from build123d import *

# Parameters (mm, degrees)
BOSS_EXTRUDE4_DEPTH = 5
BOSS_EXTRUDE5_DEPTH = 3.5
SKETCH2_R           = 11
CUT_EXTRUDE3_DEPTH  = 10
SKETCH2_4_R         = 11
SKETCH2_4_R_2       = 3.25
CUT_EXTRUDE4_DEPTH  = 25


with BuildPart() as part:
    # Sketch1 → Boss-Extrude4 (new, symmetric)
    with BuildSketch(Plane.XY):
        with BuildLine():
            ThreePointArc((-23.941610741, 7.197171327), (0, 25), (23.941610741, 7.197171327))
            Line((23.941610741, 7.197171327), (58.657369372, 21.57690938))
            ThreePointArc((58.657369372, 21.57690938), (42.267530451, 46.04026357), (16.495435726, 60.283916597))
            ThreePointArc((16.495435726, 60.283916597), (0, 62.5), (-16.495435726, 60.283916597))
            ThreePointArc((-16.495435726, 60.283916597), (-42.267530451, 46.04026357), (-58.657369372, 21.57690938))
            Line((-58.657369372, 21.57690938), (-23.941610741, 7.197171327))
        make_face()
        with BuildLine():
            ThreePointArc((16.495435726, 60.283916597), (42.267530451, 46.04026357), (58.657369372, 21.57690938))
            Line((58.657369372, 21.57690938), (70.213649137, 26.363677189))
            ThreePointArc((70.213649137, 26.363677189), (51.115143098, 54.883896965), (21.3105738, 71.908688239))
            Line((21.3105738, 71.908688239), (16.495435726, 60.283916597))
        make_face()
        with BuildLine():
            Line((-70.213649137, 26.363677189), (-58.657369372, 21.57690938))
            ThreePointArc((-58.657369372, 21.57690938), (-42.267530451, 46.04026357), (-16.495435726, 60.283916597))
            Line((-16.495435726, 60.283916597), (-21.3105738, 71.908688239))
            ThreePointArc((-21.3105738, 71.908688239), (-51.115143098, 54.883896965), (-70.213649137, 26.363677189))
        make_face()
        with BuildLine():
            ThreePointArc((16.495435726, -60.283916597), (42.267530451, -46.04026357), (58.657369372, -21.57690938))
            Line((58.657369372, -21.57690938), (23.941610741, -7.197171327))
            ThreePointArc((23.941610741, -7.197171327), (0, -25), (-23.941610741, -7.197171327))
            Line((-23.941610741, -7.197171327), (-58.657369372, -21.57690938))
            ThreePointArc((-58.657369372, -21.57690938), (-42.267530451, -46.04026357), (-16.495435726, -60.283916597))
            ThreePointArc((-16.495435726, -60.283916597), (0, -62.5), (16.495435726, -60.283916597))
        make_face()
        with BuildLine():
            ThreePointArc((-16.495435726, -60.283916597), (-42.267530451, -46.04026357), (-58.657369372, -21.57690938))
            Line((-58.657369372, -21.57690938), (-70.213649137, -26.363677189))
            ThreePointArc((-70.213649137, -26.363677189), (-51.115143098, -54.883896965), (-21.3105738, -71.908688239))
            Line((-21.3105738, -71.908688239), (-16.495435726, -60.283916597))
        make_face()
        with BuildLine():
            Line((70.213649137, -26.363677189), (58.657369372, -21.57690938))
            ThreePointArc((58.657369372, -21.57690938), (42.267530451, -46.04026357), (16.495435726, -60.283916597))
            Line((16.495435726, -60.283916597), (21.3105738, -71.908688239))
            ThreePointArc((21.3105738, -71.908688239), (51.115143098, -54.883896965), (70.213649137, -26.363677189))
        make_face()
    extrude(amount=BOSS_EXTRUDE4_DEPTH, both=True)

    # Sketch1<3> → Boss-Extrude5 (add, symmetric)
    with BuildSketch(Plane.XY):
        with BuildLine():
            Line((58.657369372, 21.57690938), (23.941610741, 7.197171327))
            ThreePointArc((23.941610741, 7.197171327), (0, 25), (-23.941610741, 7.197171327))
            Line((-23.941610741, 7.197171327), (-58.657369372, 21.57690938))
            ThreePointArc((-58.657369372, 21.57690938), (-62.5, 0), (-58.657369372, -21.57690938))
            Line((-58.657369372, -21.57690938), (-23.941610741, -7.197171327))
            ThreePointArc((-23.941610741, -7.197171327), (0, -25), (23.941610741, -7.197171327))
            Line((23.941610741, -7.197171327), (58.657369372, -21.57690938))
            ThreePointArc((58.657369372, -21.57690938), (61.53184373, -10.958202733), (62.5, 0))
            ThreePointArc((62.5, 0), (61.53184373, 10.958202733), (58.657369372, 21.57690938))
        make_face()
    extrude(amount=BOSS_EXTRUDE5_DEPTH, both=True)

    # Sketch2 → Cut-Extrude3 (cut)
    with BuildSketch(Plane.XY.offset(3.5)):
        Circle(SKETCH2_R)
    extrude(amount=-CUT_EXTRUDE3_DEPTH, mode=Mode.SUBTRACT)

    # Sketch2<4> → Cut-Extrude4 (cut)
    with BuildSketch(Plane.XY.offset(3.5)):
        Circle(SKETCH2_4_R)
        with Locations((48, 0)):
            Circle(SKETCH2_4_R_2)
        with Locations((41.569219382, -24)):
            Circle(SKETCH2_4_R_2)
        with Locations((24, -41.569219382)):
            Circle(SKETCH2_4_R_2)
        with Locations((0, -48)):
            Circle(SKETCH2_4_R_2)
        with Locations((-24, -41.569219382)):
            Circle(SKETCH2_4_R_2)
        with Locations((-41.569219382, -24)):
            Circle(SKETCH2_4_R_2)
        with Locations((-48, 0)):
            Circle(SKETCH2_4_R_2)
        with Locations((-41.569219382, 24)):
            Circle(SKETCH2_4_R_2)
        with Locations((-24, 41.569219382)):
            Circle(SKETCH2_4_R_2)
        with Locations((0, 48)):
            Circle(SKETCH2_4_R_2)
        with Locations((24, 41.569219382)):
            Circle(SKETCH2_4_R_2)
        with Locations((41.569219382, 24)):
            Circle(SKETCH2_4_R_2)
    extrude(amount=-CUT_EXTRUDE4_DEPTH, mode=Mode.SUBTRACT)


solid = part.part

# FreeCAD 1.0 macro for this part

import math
import FreeCAD as App
import Part
import Sketcher

V = App.Vector
Q = App.Units.Quantity

doc = App.newDocument("Part")
body = doc.addObject("PartDesign::Body", "Body")
body.AllowCompound = True

# Sketch on XY plane
sketch1 = body.newObject("Sketcher::SketchObject", "Sketch")
sketch1.AttachmentSupport = (doc.getObject("XY_Plane"), [""])
sketch1.MapMode = "FlatFace"
sketch1.addGeometry([
    Part.ArcOfCircle(Part.Circle(V(0, 0, 0), V(0, 0, 1), 25), math.radians(17), math.radians(163)),  # 0
    Part.LineSegment(V(24, 7, 0), V(59, 22, 0)),  # 1
    Part.LineSegment(V(59, 22, 0), V(70, 26, 0)),  # 2
    Part.ArcOfCircle(Part.Circle(V(0, 0, 0), V(0, 0, 1), 75), math.radians(21), math.radians(73)),  # 3
    Part.LineSegment(V(21, 72, 0), V(16, 60, 0)),  # 4
    Part.ArcOfCircle(Part.Circle(V(0, 0, 0), V(0, 0, 1), 63), math.radians(75), math.radians(105)),  # 5
    Part.LineSegment(V(-16, 60, 0), V(-21, 72, 0)),  # 6
    Part.ArcOfCircle(Part.Circle(V(0, 0, 0), V(0, 0, 1), 75), math.radians(107), math.radians(159)),  # 7
    Part.LineSegment(V(-70, 26, 0), V(-59, 22, 0)),  # 8
    Part.LineSegment(V(-59, 22, 0), V(-24, 7, 0)),  # 9
    Part.LineSegment(V(59, -22, 0), V(24, -7, 0)),  # 10
    Part.ArcOfCircle(Part.Circle(V(0, 0, 0), V(0, 0, 1), 25), math.radians(-163), math.radians(-17)),  # 11
    Part.LineSegment(V(-24, -7, 0), V(-59, -22, 0)),  # 12
    Part.LineSegment(V(-59, -22, 0), V(-70, -26, 0)),  # 13
    Part.ArcOfCircle(Part.Circle(V(0, 0, 0), V(0, 0, 1), 75), math.radians(-159), math.radians(-107)),  # 14
    Part.LineSegment(V(-21, -72, 0), V(-16, -60, 0)),  # 15
    Part.ArcOfCircle(Part.Circle(V(0, 0, 0), V(0, 0, 1), 63), math.radians(-105), math.radians(-75)),  # 16
    Part.LineSegment(V(16, -60, 0), V(21, -72, 0)),  # 17
    Part.ArcOfCircle(Part.Circle(V(0, 0, 0), V(0, 0, 1), 75), math.radians(-73), math.radians(-21)),  # 18
    Part.LineSegment(V(70, -26, 0), V(59, -22, 0)),  # 19
], False)
sketch1.addConstraint([
    Sketcher.Constraint("Coincident", 0, 1, 1, 1),
    Sketcher.Constraint("Coincident", 1, 2, 2, 1),
    Sketcher.Constraint("Coincident", 2, 2, 3, 1),
    Sketcher.Constraint("Coincident", 3, 2, 4, 1),
    Sketcher.Constraint("Coincident", 4, 2, 5, 1),
    Sketcher.Constraint("Coincident", 5, 2, 6, 1),
    Sketcher.Constraint("Coincident", 6, 2, 7, 1),
    Sketcher.Constraint("Coincident", 7, 2, 8, 1),
    Sketcher.Constraint("Coincident", 8, 2, 9, 1),
    Sketcher.Constraint("Coincident", 9, 2, 0, 2),
    Sketcher.Constraint("Coincident", 10, 2, 11, 2),
    Sketcher.Constraint("Coincident", 11, 1, 12, 1),
    Sketcher.Constraint("Coincident", 12, 2, 13, 1),
    Sketcher.Constraint("Coincident", 13, 2, 14, 1),
    Sketcher.Constraint("Coincident", 14, 2, 15, 1),
    Sketcher.Constraint("Coincident", 15, 2, 16, 1),
    Sketcher.Constraint("Coincident", 16, 2, 17, 1),
    Sketcher.Constraint("Coincident", 17, 2, 18, 1),
    Sketcher.Constraint("Coincident", 18, 2, 19, 1),
    Sketcher.Constraint("Coincident", 19, 2, 10, 1),
    Sketcher.Constraint("Coincident", 0, 3, -1, 1),
    Sketcher.Constraint("Coincident", 3, 3, -1, 1),
    Sketcher.Constraint("Coincident", 5, 3, -1, 1),
    Sketcher.Constraint("Coincident", 7, 3, -1, 1),
    Sketcher.Constraint("Coincident", 11, 3, -1, 1),
    Sketcher.Constraint("Coincident", 14, 3, -1, 1),
    Sketcher.Constraint("Coincident", 16, 3, -1, 1),
    Sketcher.Constraint("Coincident", 18, 3, -1, 1),
    Sketcher.Constraint("Equal", 3, 7),
    Sketcher.Constraint("Equal", 0, 11),
    Sketcher.Constraint("Equal", 7, 14),
    Sketcher.Constraint("Equal", 5, 16),
    Sketcher.Constraint("Equal", 14, 18),
    Sketcher.Constraint("Symmetric", 1, 2, 12, 2, -1, 1),
    Sketcher.Constraint("Symmetric", 8, 2, 19, 2, -1, 1),
    Sketcher.Constraint("Symmetric", 1, 2, 8, 2, -2),
    Sketcher.Constraint("Parallel", 1, 2),
    Sketcher.Constraint("Perpendicular", 2, 6),
    Sketcher.Constraint("Perpendicular", 4, 8),
    Sketcher.Constraint("Parallel", 8, 9),
    Sketcher.Constraint("Parallel", 9, 10),
    Sketcher.Constraint("Perpendicular", 6, 12),
    Sketcher.Constraint("Parallel", 12, 13),
    Sketcher.Constraint("Perpendicular", 10, 15),
    Sketcher.Constraint("Perpendicular", 13, 17),
    Sketcher.Constraint("Perpendicular", 15, 19),
    Sketcher.Constraint("Horizontal", 4, 2, 5, 2),
    Sketcher.Constraint("Horizontal", 3, 2, 6, 2),
    Sketcher.Constraint("Horizontal", 15, 2, 16, 2),
    Sketcher.Constraint("Vertical", 6, 2, 14, 2),
    Sketcher.Constraint("Radius", 0, 25.0),
    Sketcher.Constraint("Radius", 3, 75.0),
    Sketcher.Constraint("Radius", 5, 62.5),
    Sketcher.Constraint("Angle", 1, Q("22.5 deg")),
    Sketcher.Constraint("DistanceX", -1, 1, 0, 1, 23.941611),
    Sketcher.Constraint("DistanceX", -1, 1, 1, 2, 58.657369),
    Sketcher.Constraint("DistanceY", -1, 1, 3, 2, 71.908688),
])
pad1 = body.newObject("PartDesign::Pad", "Pad")
pad1.Profile = sketch1
pad1.Length = 10
pad1.Midplane = True

# Sketch on XY plane
sketch2 = body.newObject("Sketcher::SketchObject", "Sketch001")
sketch2.AttachmentSupport = (doc.getObject("XY_Plane"), [""])
sketch2.MapMode = "FlatFace"
sketch2.addGeometry([
    Part.LineSegment(V(59, 22, 0), V(24, 7, 0)),  # 0
    Part.ArcOfCircle(Part.Circle(V(0, 0, 0), V(0, 0, 1), 25), math.radians(17), math.radians(163)),  # 1
    Part.LineSegment(V(-24, 7, 0), V(-59, 22, 0)),  # 2
    Part.ArcOfCircle(Part.Circle(V(0, 0, 0), V(0, 0, 1), 63), math.radians(160), math.radians(200)),  # 3
    Part.LineSegment(V(-59, -22, 0), V(-24, -7, 0)),  # 4
    Part.ArcOfCircle(Part.Circle(V(0, 0, 0), V(0, 0, 1), 25), math.radians(-163), math.radians(-17)),  # 5
    Part.LineSegment(V(24, -7, 0), V(59, -22, 0)),  # 6
    Part.ArcOfCircle(Part.Circle(V(0, 0, 0), V(0, 0, 1), 63), math.radians(-20), math.radians(0)),  # 7
    Part.ArcOfCircle(Part.Circle(V(0, 0, 0), V(0, 0, 1), 63), math.radians(0), math.radians(20)),  # 8
], False)
sketch2.addConstraint([
    Sketcher.Constraint("Coincident", 0, 2, 1, 1),
    Sketcher.Constraint("Coincident", 1, 2, 2, 1),
    Sketcher.Constraint("Coincident", 2, 2, 3, 1),
    Sketcher.Constraint("Coincident", 3, 2, 4, 1),
    Sketcher.Constraint("Coincident", 4, 2, 5, 1),
    Sketcher.Constraint("Coincident", 5, 2, 6, 1),
    Sketcher.Constraint("Coincident", 6, 2, 7, 1),
    Sketcher.Constraint("Tangent", 7, 2, 8, 1),
    Sketcher.Constraint("Coincident", 8, 2, 0, 1),
    Sketcher.Constraint("Coincident", 1, 3, -1, 1),
    Sketcher.Constraint("Coincident", 3, 3, -1, 1),
    Sketcher.Constraint("Coincident", 5, 3, -1, 1),
    Sketcher.Constraint("Coincident", 7, 3, -1, 1),
    Sketcher.Constraint("Equal", 1, 5),
    Sketcher.Constraint("Equal", 3, 7),
    Sketcher.Constraint("Equal", 7, 8),
    Sketcher.Constraint("PointOnObject", 7, 2, -1),
    Sketcher.Constraint("Parallel", 0, 4),
    Sketcher.Constraint("Parallel", 2, 6),
    Sketcher.Constraint("Horizontal", 0, 2, 1, 2),
    Sketcher.Constraint("Horizontal", 4, 2, 5, 2),
    Sketcher.Constraint("Horizontal", 3, 2, 6, 2),
    Sketcher.Constraint("Vertical", 2, 2, 3, 2),
    Sketcher.Constraint("Radius", 1, 25.0),
    Sketcher.Constraint("Radius", 3, 62.5),
    Sketcher.Constraint("Angle", 0, Q("-157.5 deg")),
    Sketcher.Constraint("DistanceX", -1, 1, 0, 2, 23.941611),
])
pad2 = body.newObject("PartDesign::Pad", "Pad001")
pad2.Profile = sketch2
pad2.Length = 7
pad2.Midplane = True

# Sketch on XY plane
sketch3 = body.newObject("Sketcher::SketchObject", "Sketch002")
sketch3.AttachmentSupport = (doc.getObject("XY_Plane"), [""])
sketch3.MapMode = "FlatFace"
sketch3.AttachmentOffset = App.Placement(V(0, 0, 3.5), App.Rotation())
sketch3.addGeometry(Part.Circle(V(0, 0, 0), V(0, 0, 1), 11), False)
sketch3.addConstraint([
    Sketcher.Constraint("Coincident", 0, 3, -1, 1),
    Sketcher.Constraint("Diameter", 0, 22.0),
])
pocket1 = body.newObject("PartDesign::Pocket", "Pocket")
pocket1.Profile = sketch3
pocket1.Length = 10

# Sketch on XY plane
sketch4 = body.newObject("Sketcher::SketchObject", "Sketch003")
sketch4.AttachmentSupport = (doc.getObject("XY_Plane"), [""])
sketch4.MapMode = "FlatFace"
sketch4.AttachmentOffset = App.Placement(V(0, 0, 3.5), App.Rotation())
sketch4.addGeometry([
    Part.Circle(V(0, 0, 0), V(0, 0, 1), 11),  # 0
    Part.Circle(V(48, 0, 0), V(0, 0, 1), 3.2),  # 1
    Part.Circle(V(41.6, -24, 0), V(0, 0, 1), 3.2),  # 2
    Part.Circle(V(24, -41.6, 0), V(0, 0, 1), 3.2),  # 3
    Part.Circle(V(0, -48, 0), V(0, 0, 1), 3.2),  # 4
    Part.Circle(V(-24, -41.6, 0), V(0, 0, 1), 3.2),  # 5
    Part.Circle(V(-41.6, -24, 0), V(0, 0, 1), 3.2),  # 6
    Part.Circle(V(-48, 0, 0), V(0, 0, 1), 3.2),  # 7
    Part.Circle(V(-41.6, 24, 0), V(0, 0, 1), 3.2),  # 8
    Part.Circle(V(-24, 41.6, 0), V(0, 0, 1), 3.2),  # 9
    Part.Circle(V(0, 48, 0), V(0, 0, 1), 3.2),  # 10
    Part.Circle(V(24, 41.6, 0), V(0, 0, 1), 3.2),  # 11
    Part.Circle(V(41.6, 24, 0), V(0, 0, 1), 3.2),  # 12
], False)
sketch4.addConstraint([
    Sketcher.Constraint("Coincident", 0, 3, -1, 1),
    Sketcher.Constraint("Equal", 1, 2),
    Sketcher.Constraint("Equal", 2, 3),
    Sketcher.Constraint("Equal", 3, 4),
    Sketcher.Constraint("Equal", 4, 5),
    Sketcher.Constraint("Equal", 5, 6),
    Sketcher.Constraint("Equal", 6, 7),
    Sketcher.Constraint("Equal", 7, 8),
    Sketcher.Constraint("Equal", 8, 9),
    Sketcher.Constraint("Equal", 9, 10),
    Sketcher.Constraint("Equal", 10, 11),
    Sketcher.Constraint("Equal", 11, 12),
    Sketcher.Constraint("Symmetric", 1, 3, 7, 3, -1, 1),
    Sketcher.Constraint("Symmetric", 2, 3, 8, 3, -1, 1),
    Sketcher.Constraint("Symmetric", 3, 3, 9, 3, -1, 1),
    Sketcher.Constraint("Symmetric", 4, 3, 10, 3, -1, 1),
    Sketcher.Constraint("Symmetric", 5, 3, 11, 3, -1, 1),
    Sketcher.Constraint("Symmetric", 6, 3, 12, 3, -1, 1),
    Sketcher.Constraint("Symmetric", 3, 3, 5, 3, -2),
    Sketcher.Constraint("Symmetric", 2, 3, 6, 3, -2),
    Sketcher.Constraint("PointOnObject", 1, 3, -1),
    Sketcher.Constraint("PointOnObject", 4, 3, -2),
    Sketcher.Constraint("Diameter", 0, 22.0),
    Sketcher.Constraint("Diameter", 1, 6.5),
    Sketcher.Constraint("DistanceX", -1, 1, 1, 3, 48.0),
    Sketcher.Constraint("DistanceY", 2, 3, -1, 1, 24.0),
    Sketcher.Constraint("DistanceX", -1, 1, 3, 3, 24.0),
    Sketcher.Constraint("DistanceY", 4, 3, -1, 1, 48.0),
    Sketcher.Constraint("DistanceX", -1, 1, 2, 3, 41.569219),
    Sketcher.Constraint("DistanceY", 3, 3, -1, 1, 41.569219),
])
pocket2 = body.newObject("PartDesign::Pocket", "Pocket001")
pocket2.Profile = sketch4
pocket2.Length = 25

doc.recompute()
